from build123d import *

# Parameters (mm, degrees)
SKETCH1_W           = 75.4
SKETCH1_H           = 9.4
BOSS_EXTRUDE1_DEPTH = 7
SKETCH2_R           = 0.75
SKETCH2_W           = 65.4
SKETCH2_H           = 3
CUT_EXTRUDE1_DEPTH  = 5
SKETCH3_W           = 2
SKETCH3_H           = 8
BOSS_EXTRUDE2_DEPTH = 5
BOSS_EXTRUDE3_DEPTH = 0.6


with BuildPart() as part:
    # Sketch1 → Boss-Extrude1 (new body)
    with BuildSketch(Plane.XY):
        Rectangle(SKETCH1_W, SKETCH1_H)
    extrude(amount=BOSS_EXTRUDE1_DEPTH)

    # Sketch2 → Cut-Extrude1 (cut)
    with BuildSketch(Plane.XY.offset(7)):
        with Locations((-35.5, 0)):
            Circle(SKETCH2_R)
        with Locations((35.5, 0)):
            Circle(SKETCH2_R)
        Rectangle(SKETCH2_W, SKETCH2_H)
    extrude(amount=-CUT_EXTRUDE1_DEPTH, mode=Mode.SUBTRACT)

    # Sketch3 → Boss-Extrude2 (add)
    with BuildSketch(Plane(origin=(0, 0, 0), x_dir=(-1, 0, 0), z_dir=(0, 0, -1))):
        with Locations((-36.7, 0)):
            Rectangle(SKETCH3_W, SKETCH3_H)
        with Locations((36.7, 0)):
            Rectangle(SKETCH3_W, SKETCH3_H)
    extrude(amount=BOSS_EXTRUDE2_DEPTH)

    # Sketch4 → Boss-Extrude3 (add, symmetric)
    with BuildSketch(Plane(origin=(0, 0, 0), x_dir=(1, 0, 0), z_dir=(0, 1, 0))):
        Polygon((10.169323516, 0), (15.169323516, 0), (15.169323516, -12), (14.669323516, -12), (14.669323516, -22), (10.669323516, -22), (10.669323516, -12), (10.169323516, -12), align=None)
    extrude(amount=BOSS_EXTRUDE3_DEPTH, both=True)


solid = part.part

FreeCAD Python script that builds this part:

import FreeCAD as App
import Part
import Sketcher
Q = App.Units.Quantity


def add_polygon(sketch, points):
    """Adds a closed chain of lines whose ends are joined by coincident constraints."""
    first, n = sketch.GeometryCount, len(points)
    for a, b in zip(points, points[1:] + points[:1]):
        sketch.addGeometry(Part.LineSegment(App.Vector(*a, 0), App.Vector(*b, 0)), False)
    for i in range(n):
        sketch.addConstraint(Sketcher.Constraint("Coincident", first + i, 2, first + (i + 1) % n, 1))

doc = App.newDocument("Part")
body = doc.addObject("PartDesign::Body", "Body")

# Sketch on XY plane
sketch1 = body.newObject("Sketcher::SketchObject", "Sketch")
sketch1.AttachmentSupport = (doc.getObject("XY_Plane"), [""])
sketch1.MapMode = "FlatFace"
add_polygon(sketch1, [(-38, 5), (-38, -5), (38, -5), (38, 5)])  # lines 0-3
sketch1.addConstraint(Sketcher.Constraint("Vertical", 0))
sketch1.addConstraint(Sketcher.Constraint("Horizontal", 1))
sketch1.addConstraint(Sketcher.Constraint("Vertical", 2))
sketch1.addConstraint(Sketcher.Constraint("Horizontal", 3))
sketch1.addConstraint(Sketcher.Constraint("Symmetric", 0, 2, 2, 2, -1, 1))
sketch1.addConstraint(Sketcher.Constraint("DistanceX", 1, 1, 1, 2, Q("75.4 mm")))
sketch1.addConstraint(Sketcher.Constraint("DistanceY", 0, 2, 0, 1, Q("9.4 mm")))
pad1 = body.newObject("PartDesign::Pad", "Pad")
pad1.Profile = sketch1
pad1.Length = 7

# Sketch on XY plane
sketch2 = body.newObject("Sketcher::SketchObject", "Sketch001")
sketch2.AttachmentSupport = (doc.getObject("XY_Plane"), [""])
sketch2.MapMode = "FlatFace"
sketch2.AttachmentOffset = App.Placement(App.Vector(0, 0, 7), App.Rotation())
sketch2.addGeometry(Part.Circle(App.Vector(-35.5, 0, 0), App.Vector(0, 0, 1), 0.8), False)  # 0
sketch2.addGeometry(Part.Circle(App.Vector(35.5, 0, 0), App.Vector(0, 0, 1), 0.8), False)  # 1
add_polygon(sketch2, [(-32.7, 1.5), (-32.7, -1.5), (32.7, -1.5), (32.7, 1.5)])  # lines 2-5
sketch2.addConstraint(Sketcher.Constraint("Vertical", 2))
sketch2.addConstraint(Sketcher.Constraint("Horizontal", 3))
sketch2.addConstraint(Sketcher.Constraint("Vertical", 4))
sketch2.addConstraint(Sketcher.Constraint("Horizontal", 5))
sketch2.addConstraint(Sketcher.Constraint("Equal", 0, 1))
sketch2.addConstraint(Sketcher.Constraint("Symmetric", 0, 3, 1, 3, -1, 1))
sketch2.addConstraint(Sketcher.Constraint("Symmetric", 2, 2, 4, 2, -1, 1))
sketch2.addConstraint(Sketcher.Constraint("PointOnObject", 0, 3, -1))
sketch2.addConstraint(Sketcher.Constraint("Diameter", 0, Q("1.5 mm")))
sketch2.addConstraint(Sketcher.Constraint("DistanceY", 2, 2, 2, 1, Q("3 mm")))
sketch2.addConstraint(Sketcher.Constraint("DistanceX", 3, 1, 3, 2, Q("65.4 mm")))
sketch2.addConstraint(Sketcher.Constraint("DistanceX", 0, 3, 1, 3, Q("71 mm")))
pocket1 = body.newObject("PartDesign::Pocket", "Pocket")
pocket1.Profile = sketch2
pocket1.Length = 5

# Sketch on XY plane
sketch3 = body.newObject("Sketcher::SketchObject", "Sketch002")
sketch3.AttachmentSupport = (doc.getObject("XY_Plane"), [""])
sketch3.MapMode = "FlatFace"
add_polygon(sketch3, [(37.7, 4), (37.7, -4), (35.7, -4), (35.7, 4)])  # lines 0-3
add_polygon(sketch3, [(-35.7, 4), (-35.7, -4), (-37.7, -4), (-37.7, 4)])  # lines 4-7
sketch3.addConstraint(Sketcher.Constraint("Vertical", 0))
sketch3.addConstraint(Sketcher.Constraint("Horizontal", 1))
sketch3.addConstraint(Sketcher.Constraint("Vertical", 2))
sketch3.addConstraint(Sketcher.Constraint("Horizontal", 3))
sketch3.addConstraint(Sketcher.Constraint("Vertical", 4))
sketch3.addConstraint(Sketcher.Constraint("Horizontal", 5))
sketch3.addConstraint(Sketcher.Constraint("Vertical", 6))
sketch3.addConstraint(Sketcher.Constraint("Horizontal", 7))
sketch3.addConstraint(Sketcher.Constraint("Symmetric", 2, 2, 4, 2, -1, 1))
sketch3.addConstraint(Sketcher.Constraint("Symmetric", 0, 2, 6, 2, -1, 1))
sketch3.addConstraint(Sketcher.Constraint("Horizontal", 1, 2, 4, 2))
sketch3.addConstraint(Sketcher.Constraint("DistanceX", 1, 2, 1, 1, Q("2 mm")))
sketch3.addConstraint(Sketcher.Constraint("DistanceY", 0, 2, 0, 1, Q("8 mm")))
sketch3.addConstraint(Sketcher.Constraint("DistanceX", -1, 1, 0, 2, Q("37.7 mm")))
pad2 = body.newObject("PartDesign::Pad", "Pad001")
pad2.Profile = sketch3
pad2.Length = 5
pad2.Reversed = True

# Sketch on XZ plane
sketch4 = body.newObject("Sketcher::SketchObject", "Sketch003")
sketch4.AttachmentSupport = (doc.getObject("XZ_Plane"), [""])
sketch4.MapMode = "FlatFace"
add_polygon(sketch4, [(15.2, 0), (10.2, 0), (10.2, 12), (10.7, 12), (10.7, 22), (14.7, 22), (14.7, 12), (15.2, 12)])  # lines 0-7
sketch4.addConstraint(Sketcher.Constraint("Horizontal", 0))
sketch4.addConstraint(Sketcher.Constraint("Vertical", 1))
sketch4.addConstraint(Sketcher.Constraint("Horizontal", 2))
sketch4.addConstraint(Sketcher.Constraint("Vertical", 3))
sketch4.addConstraint(Sketcher.Constraint("Horizontal", 4))
sketch4.addConstraint(Sketcher.Constraint("Vertical", 5))
sketch4.addConstraint(Sketcher.Constraint("Horizontal", 6))
sketch4.addConstraint(Sketcher.Constraint("Vertical", 7))
sketch4.addConstraint(Sketcher.Constraint("PointOnObject", 0, 2, -1))
sketch4.addConstraint(Sketcher.Constraint("Horizontal", 2, 2, 5, 2))
sketch4.addConstraint(Sketcher.Constraint("Equal", 2, 6))
sketch4.addConstraint(Sketcher.Constraint("DistanceX", 0, 2, 0, 1, Q("5 mm")))
sketch4.addConstraint(Sketcher.Constraint("DistanceX", 4, 1, 4, 2, Q("4 mm")))
sketch4.addConstraint(Sketcher.Constraint("DistanceY", 1, 1, 1, 2, Q("12 mm")))
sketch4.addConstraint(Sketcher.Constraint("DistanceY", 3, 1, 3, 2, Q("10 mm")))
sketch4.addConstraint(Sketcher.Constraint("DistanceX", -1, 1, 0, 2, Q("10.169324 mm")))
pad3 = body.newObject("PartDesign::Pad", "Pad002")
pad3.Profile = sketch4
pad3.Length = 1.2
pad3.Midplane = True

doc.recompute()
